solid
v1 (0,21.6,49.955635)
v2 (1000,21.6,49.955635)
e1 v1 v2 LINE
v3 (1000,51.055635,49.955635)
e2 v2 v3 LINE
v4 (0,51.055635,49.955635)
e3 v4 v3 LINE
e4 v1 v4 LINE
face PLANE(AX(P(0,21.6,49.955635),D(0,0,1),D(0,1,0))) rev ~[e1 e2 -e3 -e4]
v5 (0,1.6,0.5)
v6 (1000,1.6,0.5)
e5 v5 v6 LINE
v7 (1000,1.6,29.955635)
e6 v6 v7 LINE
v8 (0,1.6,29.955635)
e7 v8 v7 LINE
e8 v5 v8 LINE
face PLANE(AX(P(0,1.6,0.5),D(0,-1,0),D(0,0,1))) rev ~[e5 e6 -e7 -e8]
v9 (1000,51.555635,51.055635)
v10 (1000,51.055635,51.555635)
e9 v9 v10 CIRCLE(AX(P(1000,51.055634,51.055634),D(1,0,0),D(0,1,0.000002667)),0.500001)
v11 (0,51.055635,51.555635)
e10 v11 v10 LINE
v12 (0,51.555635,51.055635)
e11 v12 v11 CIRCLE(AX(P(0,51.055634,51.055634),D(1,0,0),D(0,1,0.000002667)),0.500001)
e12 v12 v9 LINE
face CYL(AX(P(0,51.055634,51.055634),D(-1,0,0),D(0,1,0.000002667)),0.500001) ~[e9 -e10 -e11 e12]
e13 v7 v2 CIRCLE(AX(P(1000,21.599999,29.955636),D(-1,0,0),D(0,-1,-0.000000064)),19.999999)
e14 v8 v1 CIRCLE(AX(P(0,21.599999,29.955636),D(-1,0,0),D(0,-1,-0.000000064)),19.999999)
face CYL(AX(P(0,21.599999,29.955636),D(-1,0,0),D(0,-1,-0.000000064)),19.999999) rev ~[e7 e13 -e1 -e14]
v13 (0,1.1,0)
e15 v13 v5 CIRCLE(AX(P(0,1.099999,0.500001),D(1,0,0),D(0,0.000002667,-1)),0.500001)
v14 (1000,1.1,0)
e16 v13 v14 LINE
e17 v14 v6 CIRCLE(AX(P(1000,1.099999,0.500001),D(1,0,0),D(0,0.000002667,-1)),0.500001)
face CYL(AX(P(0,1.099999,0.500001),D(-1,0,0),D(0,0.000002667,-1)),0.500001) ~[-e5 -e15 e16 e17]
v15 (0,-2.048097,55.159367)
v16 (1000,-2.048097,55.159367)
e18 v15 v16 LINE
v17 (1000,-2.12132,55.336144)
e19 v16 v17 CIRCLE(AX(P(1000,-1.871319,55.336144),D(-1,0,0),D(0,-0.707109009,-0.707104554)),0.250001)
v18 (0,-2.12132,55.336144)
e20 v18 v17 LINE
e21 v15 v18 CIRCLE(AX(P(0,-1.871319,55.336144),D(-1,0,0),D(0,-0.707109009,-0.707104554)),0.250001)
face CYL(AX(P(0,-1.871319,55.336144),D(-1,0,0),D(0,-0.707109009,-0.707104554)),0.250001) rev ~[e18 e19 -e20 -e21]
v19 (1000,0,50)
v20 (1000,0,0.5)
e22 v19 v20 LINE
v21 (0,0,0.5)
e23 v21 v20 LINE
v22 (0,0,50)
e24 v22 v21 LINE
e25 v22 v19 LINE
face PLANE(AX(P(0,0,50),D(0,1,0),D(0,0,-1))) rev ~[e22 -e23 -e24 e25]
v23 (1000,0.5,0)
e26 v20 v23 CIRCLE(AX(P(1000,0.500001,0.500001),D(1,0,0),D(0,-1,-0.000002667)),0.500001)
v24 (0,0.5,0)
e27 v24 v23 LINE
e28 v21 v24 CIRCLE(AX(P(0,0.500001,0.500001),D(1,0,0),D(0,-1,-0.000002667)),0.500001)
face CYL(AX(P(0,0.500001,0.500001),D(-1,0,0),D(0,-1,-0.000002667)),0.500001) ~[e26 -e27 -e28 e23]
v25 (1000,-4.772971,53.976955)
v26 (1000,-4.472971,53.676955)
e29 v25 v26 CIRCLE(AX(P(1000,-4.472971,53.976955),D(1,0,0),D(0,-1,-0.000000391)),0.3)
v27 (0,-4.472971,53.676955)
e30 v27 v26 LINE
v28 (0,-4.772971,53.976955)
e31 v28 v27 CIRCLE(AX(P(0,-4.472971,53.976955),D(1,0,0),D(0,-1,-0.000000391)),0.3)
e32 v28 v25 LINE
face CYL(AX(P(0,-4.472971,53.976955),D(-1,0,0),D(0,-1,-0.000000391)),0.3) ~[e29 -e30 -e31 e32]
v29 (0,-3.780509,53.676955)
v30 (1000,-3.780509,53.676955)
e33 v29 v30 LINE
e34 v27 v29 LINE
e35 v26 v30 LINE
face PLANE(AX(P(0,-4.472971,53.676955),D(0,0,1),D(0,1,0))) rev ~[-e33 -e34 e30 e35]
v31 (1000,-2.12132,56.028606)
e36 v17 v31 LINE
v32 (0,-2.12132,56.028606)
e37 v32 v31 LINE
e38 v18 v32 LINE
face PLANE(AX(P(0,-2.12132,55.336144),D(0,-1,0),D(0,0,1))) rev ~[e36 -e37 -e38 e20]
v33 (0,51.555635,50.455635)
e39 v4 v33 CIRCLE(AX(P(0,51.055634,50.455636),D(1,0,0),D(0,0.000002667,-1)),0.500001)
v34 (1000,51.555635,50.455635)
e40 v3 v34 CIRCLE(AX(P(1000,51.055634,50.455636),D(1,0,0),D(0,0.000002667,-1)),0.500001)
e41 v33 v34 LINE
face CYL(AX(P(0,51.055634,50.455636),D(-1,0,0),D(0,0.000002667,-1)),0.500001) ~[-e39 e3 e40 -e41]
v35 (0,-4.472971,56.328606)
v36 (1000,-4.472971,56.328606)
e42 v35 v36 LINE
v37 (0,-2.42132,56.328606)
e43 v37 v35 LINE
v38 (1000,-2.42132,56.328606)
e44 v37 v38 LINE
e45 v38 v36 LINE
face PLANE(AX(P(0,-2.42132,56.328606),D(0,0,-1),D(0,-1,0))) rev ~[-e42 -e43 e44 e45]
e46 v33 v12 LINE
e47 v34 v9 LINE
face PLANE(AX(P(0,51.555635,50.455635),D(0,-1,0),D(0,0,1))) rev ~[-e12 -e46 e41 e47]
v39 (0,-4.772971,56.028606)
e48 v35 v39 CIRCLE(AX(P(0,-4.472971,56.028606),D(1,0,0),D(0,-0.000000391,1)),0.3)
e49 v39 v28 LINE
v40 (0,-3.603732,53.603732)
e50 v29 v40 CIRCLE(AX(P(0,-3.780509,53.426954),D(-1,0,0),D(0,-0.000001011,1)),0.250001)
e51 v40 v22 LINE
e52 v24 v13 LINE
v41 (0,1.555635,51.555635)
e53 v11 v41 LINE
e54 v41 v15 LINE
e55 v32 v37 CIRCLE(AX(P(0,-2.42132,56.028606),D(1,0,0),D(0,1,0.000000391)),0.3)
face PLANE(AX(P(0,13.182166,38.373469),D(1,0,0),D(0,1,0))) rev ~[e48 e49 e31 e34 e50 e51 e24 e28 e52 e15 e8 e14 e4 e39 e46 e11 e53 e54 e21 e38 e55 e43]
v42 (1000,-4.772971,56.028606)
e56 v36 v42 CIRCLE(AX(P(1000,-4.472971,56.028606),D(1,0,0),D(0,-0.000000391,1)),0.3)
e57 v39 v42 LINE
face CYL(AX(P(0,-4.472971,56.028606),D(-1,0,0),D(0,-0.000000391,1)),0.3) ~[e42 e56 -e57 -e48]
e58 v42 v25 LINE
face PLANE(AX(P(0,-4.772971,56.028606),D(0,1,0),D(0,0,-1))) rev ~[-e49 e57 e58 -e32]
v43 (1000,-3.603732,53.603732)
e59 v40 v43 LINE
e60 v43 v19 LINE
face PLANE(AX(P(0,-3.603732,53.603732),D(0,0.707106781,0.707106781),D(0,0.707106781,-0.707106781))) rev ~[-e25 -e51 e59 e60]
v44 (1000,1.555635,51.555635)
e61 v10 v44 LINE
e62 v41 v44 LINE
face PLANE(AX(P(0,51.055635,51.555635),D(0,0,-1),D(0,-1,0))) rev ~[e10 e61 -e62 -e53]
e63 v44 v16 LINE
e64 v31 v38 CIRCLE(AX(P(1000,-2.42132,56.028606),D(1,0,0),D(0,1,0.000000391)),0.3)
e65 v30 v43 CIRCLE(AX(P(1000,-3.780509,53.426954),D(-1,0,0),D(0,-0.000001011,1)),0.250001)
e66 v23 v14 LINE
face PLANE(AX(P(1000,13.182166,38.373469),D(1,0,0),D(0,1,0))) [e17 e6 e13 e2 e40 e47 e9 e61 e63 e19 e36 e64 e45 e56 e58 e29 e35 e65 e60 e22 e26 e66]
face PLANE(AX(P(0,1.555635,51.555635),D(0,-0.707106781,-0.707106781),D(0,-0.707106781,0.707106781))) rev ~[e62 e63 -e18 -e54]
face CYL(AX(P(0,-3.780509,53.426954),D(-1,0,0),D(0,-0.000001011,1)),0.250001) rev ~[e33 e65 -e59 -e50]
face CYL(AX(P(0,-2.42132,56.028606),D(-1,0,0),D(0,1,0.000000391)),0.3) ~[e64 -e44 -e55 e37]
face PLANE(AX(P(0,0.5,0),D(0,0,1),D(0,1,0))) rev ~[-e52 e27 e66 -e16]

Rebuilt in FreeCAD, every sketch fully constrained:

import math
import FreeCAD as App
import Part
import Sketcher

V = App.Vector
Q = App.Units.Quantity

doc = App.newDocument("Part")
body = doc.addObject("PartDesign::Body", "Body")

# Sketch on YZ plane
sketch1 = body.newObject("Sketcher::SketchObject", "Sketch")
sketch1.AttachmentSupport = (doc.getObject("YZ_Plane"), [""])
sketch1.MapMode = "FlatFace"
sketch1.addGeometry([
    Part.LineSegment(V(0, 50, 0), V(0, 0.5, 0)),  # 0
    Part.ArcOfCircle(Part.Circle(V(0.5, 0.5, 0), V(0, 0, 1), 0.5), math.radians(-180), math.radians(-90)),  # 1
    Part.LineSegment(V(0.5, 0, 0), V(1.1, 0, 0)),  # 2
    Part.ArcOfCircle(Part.Circle(V(1.1, 0.5, 0), V(0, 0, 1), 0.5), math.radians(-90), math.radians(0)),  # 3
    Part.LineSegment(V(1.6, 0.5, 0), V(1.6, 29.96, 0)),  # 4
    Part.ArcOfCircle(Part.Circle(V(21.6, 29.96, 0), V(0, 0, 1), 20), math.radians(90), math.radians(180)),  # 5
    Part.LineSegment(V(21.6, 49.96, 0), V(51.06, 49.96, 0)),  # 6
    Part.ArcOfCircle(Part.Circle(V(51.06, 50.46, 0), V(0, 0, 1), 0.5), math.radians(-90), math.radians(0)),  # 7
    Part.LineSegment(V(51.56, 50.46, 0), V(51.56, 51.06, 0)),  # 8
    Part.ArcOfCircle(Part.Circle(V(51.06, 51.06, 0), V(0, 0, 1), 0.5), math.radians(0), math.radians(90)),  # 9
    Part.LineSegment(V(51.06, 51.56, 0), V(1.56, 51.56, 0)),  # 10
    Part.LineSegment(V(1.56, 51.56, 0), V(-2.05, 55.16, 0)),  # 11
    Part.ArcOfCircle(Part.Circle(V(-1.87, 55.34, 0), V(0, 0, 1), 0.25), math.radians(180), math.radians(225)),  # 12
    Part.LineSegment(V(-2.12, 55.34, 0), V(-2.12, 56.03, 0)),  # 13
    Part.ArcOfCircle(Part.Circle(V(-2.42, 56.03, 0), V(0, 0, 1), 0.3), math.radians(0), math.radians(90)),  # 14
    Part.LineSegment(V(-2.42, 56.33, 0), V(-4.47, 56.33, 0)),  # 15
    Part.ArcOfCircle(Part.Circle(V(-4.47, 56.03, 0), V(0, 0, 1), 0.3), math.radians(90), math.radians(180)),  # 16
    Part.LineSegment(V(-4.77, 56.03, 0), V(-4.77, 53.98, 0)),  # 17
    Part.ArcOfCircle(Part.Circle(V(-4.47, 53.98, 0), V(0, 0, 1), 0.3), math.radians(-180), math.radians(-90)),  # 18
    Part.LineSegment(V(-4.47, 53.68, 0), V(-3.78, 53.68, 0)),  # 19
    Part.ArcOfCircle(Part.Circle(V(-3.78, 53.43, 0), V(0, 0, 1), 0.25), math.radians(45), math.radians(90)),  # 20
    Part.LineSegment(V(-3.6, 53.6, 0), V(0, 50, 0)),  # 21
], False)
sketch1.addConstraint([
    Sketcher.Constraint("Coincident", 0, 2, 1, 1),
    Sketcher.Constraint("Coincident", 1, 2, 2, 1),
    Sketcher.Constraint("Coincident", 2, 2, 3, 1),
    Sketcher.Constraint("Coincident", 3, 2, 4, 1),
    Sketcher.Constraint("Tangent", 4, 2, 5, 2),
    Sketcher.Constraint("Tangent", 5, 1, 6, 1),
    Sketcher.Constraint("Coincident", 6, 2, 7, 1),
    Sketcher.Constraint("Coincident", 7, 2, 8, 1),
    Sketcher.Constraint("Coincident", 8, 2, 9, 1),
    Sketcher.Constraint("Coincident", 9, 2, 10, 1),
    Sketcher.Constraint("Coincident", 10, 2, 11, 1),
    Sketcher.Constraint("Coincident", 11, 2, 12, 2),
    Sketcher.Constraint("Tangent", 12, 1, 13, 1),
    Sketcher.Constraint("Tangent", 13, 2, 14, 1),
    Sketcher.Constraint("Tangent", 14, 2, 15, 1),
    Sketcher.Constraint("Tangent", 15, 2, 16, 1),
    Sketcher.Constraint("Tangent", 16, 2, 17, 1),
    Sketcher.Constraint("Tangent", 17, 2, 18, 1),
    Sketcher.Constraint("Tangent", 18, 2, 19, 1),
    Sketcher.Constraint("Tangent", 19, 2, 20, 2),
    Sketcher.Constraint("Coincident", 20, 1, 21, 1),
    Sketcher.Constraint("Coincident", 21, 2, 0, 1),
    Sketcher.Constraint("Vertical", 0),
    Sketcher.Constraint("Horizontal", 2),
    Sketcher.Constraint("Vertical", 4),
    Sketcher.Constraint("Horizontal", 6),
    Sketcher.Constraint("Vertical", 8),
    Sketcher.Constraint("Horizontal", 10),
    Sketcher.Constraint("Vertical", 13),
    Sketcher.Constraint("Horizontal", 15),
    Sketcher.Constraint("Vertical", 17),
    Sketcher.Constraint("Horizontal", 19),
    Sketcher.Constraint("Equal", 1, 3),
    Sketcher.Constraint("Equal", 3, 7),
    Sketcher.Constraint("Equal", 7, 9),
    Sketcher.Constraint("Equal", 14, 16),
    Sketcher.Constraint("Equal", 16, 18),
    Sketcher.Constraint("Equal", 12, 20),
    Sketcher.Constraint("PointOnObject", 0, 2, -2),
    Sketcher.Constraint("PointOnObject", 1, 2, -1),
    Sketcher.Constraint("Parallel", 11, 21),
    Sketcher.Constraint("Horizontal", 3, 3, 0, 2),
    Sketcher.Constraint("Horizontal", 0, 2, 3, 2),
    Sketcher.Constraint("Horizontal", 9, 3, 8, 2),
    Sketcher.Constraint("Vertical", 3, 3, 2, 2),
    Sketcher.Constraint("Vertical", 9, 3, 6, 2),
    Sketcher.Constraint("Vertical", 6, 2, 9, 2),
    Sketcher.Constraint("Equal", 10, 0),
    Sketcher.Constraint("Equal", 6, 4),
    Sketcher.Constraint("Equal", 2, 8),
    Sketcher.Constraint("Equal", 19, 13),
    Sketcher.Constraint("Equal", 15, 17),
    Sketcher.Constraint("Equal", 11, 21),
    Sketcher.Constraint("Radius", 5, Q("19.999999 mm")),
    Sketcher.Constraint("Radius", 1, Q("0.500001 mm")),
    Sketcher.Constraint("Radius", 14, Q("0.3 mm")),
    Sketcher.Constraint("Angle", 11, Q("135 deg")),
    Sketcher.Constraint("Radius", 12, Q("0.250001 mm")),
    Sketcher.Constraint("DistanceX", 2, 1, 2, 2, Q("0.6 mm")),
    Sketcher.Constraint("DistanceX", 10, 2, 10, 1, Q("49.5 mm")),
    Sketcher.Constraint("DistanceX", -1, 1, 3, 3, Q("1.099999 mm")),
    Sketcher.Constraint("DistanceY", 6, 2, 9, 3, Q("1.099999 mm")),
    Sketcher.Constraint("DistanceX", 15, 2, 15, 1, Q("2.051651 mm")),
    Sketcher.Constraint("DistanceX", 6, 1, 6, 2, Q("29.455635 mm")),
    Sketcher.Constraint("DistanceX", 12, 3, -1, 1, Q("1.871319 mm")),
    Sketcher.Constraint("DistanceX", 20, 1, -1, 1, Q("3.603732 mm")),
])
pad1 = body.newObject("PartDesign::Pad", "Pad")
pad1.Profile = sketch1
pad1.Length = 1000

doc.recompute()
